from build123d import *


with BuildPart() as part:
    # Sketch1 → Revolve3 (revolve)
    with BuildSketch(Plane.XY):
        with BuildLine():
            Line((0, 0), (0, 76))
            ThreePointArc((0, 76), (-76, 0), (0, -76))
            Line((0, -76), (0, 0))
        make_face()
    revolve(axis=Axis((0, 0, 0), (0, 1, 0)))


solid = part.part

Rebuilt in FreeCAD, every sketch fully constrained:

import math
import FreeCAD as App
import Part
import Sketcher
Q = App.Units.Quantity

doc = App.newDocument("Part")
params = doc.addObject("Spreadsheet::Sheet", "Params")
for row, (alias, value) in enumerate([
    ("sketch1_radius", "76 mm"),
    ("revolution_angle", "360 deg"),
], start=1):
    params.set(f"A{row}", alias)
    params.set(f"B{row}", "=" + value)
    params.setAlias(f"B{row}", alias)

body = doc.addObject("PartDesign::Body", "Body")

# Sketch on XY plane
sketch1 = body.newObject("Sketcher::SketchObject", "Sketch")
sketch1.AttachmentSupport = (doc.getObject("XY_Plane"), [""])
sketch1.MapMode = "FlatFace"
sketch1.addGeometry([
    Part.ArcOfCircle(Part.Circle(App.Vector(0, 0, 0), App.Vector(0, 0, 1), 76), math.radians(90), math.radians(270)),
    Part.LineSegment(App.Vector(0, -76, 0), App.Vector(0, 76, 0)),
], False)
sketch1.addConstraint([
    Sketcher.Constraint("Coincident", 0, 1, 1, 2),
    Sketcher.Constraint("Coincident", 1, 1, 0, 2),
    Sketcher.Constraint("Vertical", 1),
    Sketcher.Constraint("Coincident", 0, 3, -1, 1),
    Sketcher.Constraint("PointOnObject", 0, 1, -2),
    Sketcher.Constraint("Radius", 0, Q("76 mm")),
])
sketch1.setExpression("Constraints[5]", "Params.sketch1_radius")
revolution = body.newObject("PartDesign::Revolution", "Revolution")
revolution.Profile = sketch1
revolution.ReferenceAxis = (sketch1, ["V_Axis"])
revolution.setExpression("Angle", "Params.revolution_angle")

doc.recompute()
